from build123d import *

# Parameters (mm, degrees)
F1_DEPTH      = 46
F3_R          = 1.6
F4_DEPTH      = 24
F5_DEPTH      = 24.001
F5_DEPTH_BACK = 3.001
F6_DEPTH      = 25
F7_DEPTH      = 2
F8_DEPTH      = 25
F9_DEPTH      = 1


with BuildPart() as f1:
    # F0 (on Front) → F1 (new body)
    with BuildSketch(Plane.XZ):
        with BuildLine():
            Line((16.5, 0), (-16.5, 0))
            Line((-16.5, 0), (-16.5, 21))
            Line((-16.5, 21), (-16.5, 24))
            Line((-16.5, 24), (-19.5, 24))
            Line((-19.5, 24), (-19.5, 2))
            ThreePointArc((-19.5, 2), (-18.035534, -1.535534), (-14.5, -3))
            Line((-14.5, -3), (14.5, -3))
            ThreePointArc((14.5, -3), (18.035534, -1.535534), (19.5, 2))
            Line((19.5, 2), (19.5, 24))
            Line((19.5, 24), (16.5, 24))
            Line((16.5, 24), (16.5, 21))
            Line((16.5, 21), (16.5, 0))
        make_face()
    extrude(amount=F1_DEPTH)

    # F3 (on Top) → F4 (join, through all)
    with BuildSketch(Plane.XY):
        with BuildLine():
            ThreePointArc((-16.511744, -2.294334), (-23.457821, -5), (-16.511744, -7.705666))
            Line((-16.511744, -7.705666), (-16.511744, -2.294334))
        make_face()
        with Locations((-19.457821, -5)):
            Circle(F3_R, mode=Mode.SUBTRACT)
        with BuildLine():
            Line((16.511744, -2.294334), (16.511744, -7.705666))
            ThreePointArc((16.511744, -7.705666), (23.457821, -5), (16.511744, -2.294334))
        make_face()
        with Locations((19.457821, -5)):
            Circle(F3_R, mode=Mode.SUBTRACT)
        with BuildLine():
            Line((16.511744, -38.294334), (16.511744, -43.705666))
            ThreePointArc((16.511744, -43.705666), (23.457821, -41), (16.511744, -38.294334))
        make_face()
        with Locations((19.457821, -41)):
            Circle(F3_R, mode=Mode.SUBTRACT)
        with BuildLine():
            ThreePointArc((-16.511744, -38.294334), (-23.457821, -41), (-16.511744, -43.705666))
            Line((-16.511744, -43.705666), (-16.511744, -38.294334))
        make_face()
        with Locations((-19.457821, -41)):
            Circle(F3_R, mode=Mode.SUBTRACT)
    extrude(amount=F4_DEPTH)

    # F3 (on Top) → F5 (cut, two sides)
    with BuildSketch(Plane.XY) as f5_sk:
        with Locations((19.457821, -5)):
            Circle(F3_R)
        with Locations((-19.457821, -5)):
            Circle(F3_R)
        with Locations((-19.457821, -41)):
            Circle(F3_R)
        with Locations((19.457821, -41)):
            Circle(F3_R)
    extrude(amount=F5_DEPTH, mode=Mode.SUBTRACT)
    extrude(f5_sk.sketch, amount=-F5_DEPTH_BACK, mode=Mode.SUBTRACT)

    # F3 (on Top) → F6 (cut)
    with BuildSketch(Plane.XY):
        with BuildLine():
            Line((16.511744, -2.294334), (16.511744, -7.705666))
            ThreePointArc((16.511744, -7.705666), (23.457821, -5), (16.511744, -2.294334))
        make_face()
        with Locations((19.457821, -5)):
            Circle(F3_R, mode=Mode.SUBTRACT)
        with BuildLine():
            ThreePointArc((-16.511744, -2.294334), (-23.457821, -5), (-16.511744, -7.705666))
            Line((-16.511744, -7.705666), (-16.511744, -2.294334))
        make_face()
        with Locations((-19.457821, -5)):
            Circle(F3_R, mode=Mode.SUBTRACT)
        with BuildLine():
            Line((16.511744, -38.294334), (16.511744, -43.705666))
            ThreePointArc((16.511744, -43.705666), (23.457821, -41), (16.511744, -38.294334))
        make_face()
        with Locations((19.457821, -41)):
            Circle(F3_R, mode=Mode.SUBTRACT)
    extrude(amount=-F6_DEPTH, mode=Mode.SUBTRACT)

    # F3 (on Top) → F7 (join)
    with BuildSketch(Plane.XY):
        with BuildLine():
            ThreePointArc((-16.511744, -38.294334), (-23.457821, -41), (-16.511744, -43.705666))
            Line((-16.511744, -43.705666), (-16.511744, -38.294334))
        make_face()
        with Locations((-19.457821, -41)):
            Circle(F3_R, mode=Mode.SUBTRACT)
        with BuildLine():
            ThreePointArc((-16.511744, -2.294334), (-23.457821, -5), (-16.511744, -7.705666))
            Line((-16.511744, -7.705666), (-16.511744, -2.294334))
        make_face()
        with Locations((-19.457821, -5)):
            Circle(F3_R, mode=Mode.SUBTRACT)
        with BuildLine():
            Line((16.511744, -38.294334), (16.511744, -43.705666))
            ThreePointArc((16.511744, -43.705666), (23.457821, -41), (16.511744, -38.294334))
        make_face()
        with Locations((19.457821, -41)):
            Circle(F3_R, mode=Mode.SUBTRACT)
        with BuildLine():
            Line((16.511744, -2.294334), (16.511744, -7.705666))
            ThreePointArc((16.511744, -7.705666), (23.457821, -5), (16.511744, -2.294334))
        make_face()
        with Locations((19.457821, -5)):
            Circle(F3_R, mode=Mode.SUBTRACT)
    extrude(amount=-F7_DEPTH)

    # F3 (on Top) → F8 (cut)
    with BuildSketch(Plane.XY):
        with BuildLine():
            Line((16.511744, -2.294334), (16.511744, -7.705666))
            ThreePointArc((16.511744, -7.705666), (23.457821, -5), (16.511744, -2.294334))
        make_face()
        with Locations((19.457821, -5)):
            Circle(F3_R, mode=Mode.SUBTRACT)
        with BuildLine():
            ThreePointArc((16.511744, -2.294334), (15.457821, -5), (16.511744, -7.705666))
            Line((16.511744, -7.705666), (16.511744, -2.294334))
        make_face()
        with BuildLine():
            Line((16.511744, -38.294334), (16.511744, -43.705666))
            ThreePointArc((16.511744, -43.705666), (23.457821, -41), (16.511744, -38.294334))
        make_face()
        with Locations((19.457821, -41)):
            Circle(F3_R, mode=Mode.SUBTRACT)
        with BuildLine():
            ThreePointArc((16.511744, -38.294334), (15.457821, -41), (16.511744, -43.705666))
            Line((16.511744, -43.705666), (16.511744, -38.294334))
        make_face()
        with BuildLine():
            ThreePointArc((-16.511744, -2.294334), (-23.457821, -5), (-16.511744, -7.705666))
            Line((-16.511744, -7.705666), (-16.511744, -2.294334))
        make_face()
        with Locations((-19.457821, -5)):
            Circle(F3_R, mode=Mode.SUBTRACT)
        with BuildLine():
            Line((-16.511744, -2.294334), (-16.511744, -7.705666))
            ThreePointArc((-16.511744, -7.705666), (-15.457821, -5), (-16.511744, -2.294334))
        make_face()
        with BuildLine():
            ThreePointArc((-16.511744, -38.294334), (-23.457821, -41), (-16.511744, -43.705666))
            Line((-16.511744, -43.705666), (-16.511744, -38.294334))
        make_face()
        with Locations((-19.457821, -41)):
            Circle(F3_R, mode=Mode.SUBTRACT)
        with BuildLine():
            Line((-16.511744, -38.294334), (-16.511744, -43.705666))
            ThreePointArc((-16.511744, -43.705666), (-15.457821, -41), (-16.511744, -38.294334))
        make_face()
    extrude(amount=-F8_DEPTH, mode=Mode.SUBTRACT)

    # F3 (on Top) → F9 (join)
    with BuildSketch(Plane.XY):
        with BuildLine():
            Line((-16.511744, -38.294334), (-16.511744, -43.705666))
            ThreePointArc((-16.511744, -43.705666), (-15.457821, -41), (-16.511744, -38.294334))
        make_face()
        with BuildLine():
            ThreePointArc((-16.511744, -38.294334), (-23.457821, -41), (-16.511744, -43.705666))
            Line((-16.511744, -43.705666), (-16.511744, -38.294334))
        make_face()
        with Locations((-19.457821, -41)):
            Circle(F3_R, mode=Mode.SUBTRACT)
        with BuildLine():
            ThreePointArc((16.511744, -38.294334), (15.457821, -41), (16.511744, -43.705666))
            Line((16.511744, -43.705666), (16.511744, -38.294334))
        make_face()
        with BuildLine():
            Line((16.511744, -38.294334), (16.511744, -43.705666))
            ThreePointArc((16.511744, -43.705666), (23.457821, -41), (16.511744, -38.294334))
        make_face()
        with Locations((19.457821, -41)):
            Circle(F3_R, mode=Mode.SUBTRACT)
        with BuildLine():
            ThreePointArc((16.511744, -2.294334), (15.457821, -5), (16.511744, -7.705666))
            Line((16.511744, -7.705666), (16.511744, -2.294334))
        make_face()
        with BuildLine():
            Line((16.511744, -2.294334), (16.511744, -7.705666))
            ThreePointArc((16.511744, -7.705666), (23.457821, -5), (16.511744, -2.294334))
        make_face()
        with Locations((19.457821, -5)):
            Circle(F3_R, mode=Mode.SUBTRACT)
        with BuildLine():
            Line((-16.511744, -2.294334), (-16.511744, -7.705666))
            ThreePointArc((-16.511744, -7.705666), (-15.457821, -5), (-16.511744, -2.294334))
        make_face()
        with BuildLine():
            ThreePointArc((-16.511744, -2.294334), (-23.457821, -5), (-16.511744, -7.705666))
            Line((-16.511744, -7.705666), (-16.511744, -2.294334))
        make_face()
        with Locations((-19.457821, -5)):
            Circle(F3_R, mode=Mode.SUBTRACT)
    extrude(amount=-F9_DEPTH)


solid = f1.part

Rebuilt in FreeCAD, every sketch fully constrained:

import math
import FreeCAD as App
import Part
import Sketcher
from FreeCAD import Vector
Q = App.Units.Quantity

doc = App.newDocument("Part")
body = doc.addObject("PartDesign::Body", "Body")

# Sketch on XZ plane
sketch1 = body.newObject("Sketcher::SketchObject", "Sketch")
sketch1.AttachmentSupport = (doc.getObject("XZ_Plane"), [""])
sketch1.MapMode = "FlatFace"
sketch1.addGeometry([
    Part.LineSegment(Vector(16.5, 0, 0), Vector(-16.5, 0, 0)),  # 0
    Part.LineSegment(Vector(-16.5, 0, 0), Vector(-16.5, 24, 0)),  # 1
    Part.LineSegment(Vector(-16.5, 24, 0), Vector(-19.5, 24, 0)),  # 2
    Part.LineSegment(Vector(-19.5, 24, 0), Vector(-19.5, 2, 0)),  # 3
    Part.ArcOfCircle(Part.Circle(Vector(-14.5, 2, 0), Vector(0, 0, 1), 5), math.radians(180), math.radians(270)),  # 4
    Part.LineSegment(Vector(-14.5, -3, 0), Vector(14.5, -3, 0)),  # 5
    Part.ArcOfCircle(Part.Circle(Vector(14.5, 2, 0), Vector(0, 0, 1), 5), math.radians(-90), math.radians(0)),  # 6
    Part.LineSegment(Vector(19.5, 2, 0), Vector(19.5, 24, 0)),  # 7
    Part.LineSegment(Vector(19.5, 24, 0), Vector(16.5, 24, 0)),  # 8
    Part.LineSegment(Vector(16.5, 24, 0), Vector(16.5, 0, 0)),  # 9
], False)
sketch1.addConstraint([
    Sketcher.Constraint("Coincident", 0, 2, 1, 1),
    Sketcher.Constraint("Coincident", 1, 2, 2, 1),
    Sketcher.Constraint("Coincident", 2, 2, 3, 1),
    Sketcher.Constraint("Tangent", 3, 2, 4, 1),
    Sketcher.Constraint("Tangent", 4, 2, 5, 1),
    Sketcher.Constraint("Tangent", 5, 2, 6, 1),
    Sketcher.Constraint("Tangent", 6, 2, 7, 1),
    Sketcher.Constraint("Coincident", 7, 2, 8, 1),
    Sketcher.Constraint("Coincident", 8, 2, 9, 1),
    Sketcher.Constraint("Coincident", 9, 2, 0, 1),
    Sketcher.Constraint("Horizontal", 0),
    Sketcher.Constraint("Vertical", 1),
    Sketcher.Constraint("Horizontal", 2),
    Sketcher.Constraint("Vertical", 3),
    Sketcher.Constraint("Horizontal", 5),
    Sketcher.Constraint("Vertical", 7),
    Sketcher.Constraint("Horizontal", 8),
    Sketcher.Constraint("Vertical", 9),
    Sketcher.Constraint("Equal", 4, 6),
    Sketcher.Constraint("Symmetric", 0, 2, 9, 2, -1, 1),
    Sketcher.Constraint("Symmetric", 2, 2, 7, 2, -2),
    Sketcher.Constraint("Radius", 4, Q("5 mm")),
    Sketcher.Constraint("DistanceX", 0, 2, 0, 1, Q("33 mm")),
    Sketcher.Constraint("DistanceX", 2, 2, 2, 1, Q("3 mm")),
    Sketcher.Constraint("DistanceY", 1, 1, 1, 2, Q("24 mm")),
    Sketcher.Constraint("DistanceY", 3, 2, 3, 1, Q("22 mm")),
])
pad1 = body.newObject("PartDesign::Pad", "Pad")
pad1.Profile = sketch1
pad1.Length = 46

# Sketch on XY plane
sketch2 = body.newObject("Sketcher::SketchObject", "Sketch001")
sketch2.AttachmentSupport = (doc.getObject("XY_Plane"), [""])
sketch2.MapMode = "FlatFace"
sketch2.addGeometry([
    Part.ArcOfCircle(Part.Circle(Vector(-19.5, -5, 0), Vector(0, 0, 1), 4), math.radians(43), math.radians(317)),  # 0
    Part.LineSegment(Vector(-16.5, -7.7, 0), Vector(-16.5, -2.3, 0)),  # 1
    Part.Circle(Vector(-19.5, -5, 0), Vector(0, 0, 1), 1.6),  # 2
    Part.LineSegment(Vector(16.5, -2.3, 0), Vector(16.5, -7.7, 0)),  # 3
    Part.ArcOfCircle(Part.Circle(Vector(19.5, -5, 0), Vector(0, 0, 1), 4), math.radians(-137), math.radians(137)),  # 4
    Part.Circle(Vector(19.5, -5, 0), Vector(0, 0, 1), 1.6),  # 5
    Part.LineSegment(Vector(16.5, -38.3, 0), Vector(16.5, -43.7, 0)),  # 6
    Part.ArcOfCircle(Part.Circle(Vector(19.5, -41, 0), Vector(0, 0, 1), 4), math.radians(-137), math.radians(137)),  # 7
    Part.Circle(Vector(19.5, -41, 0), Vector(0, 0, 1), 1.6),  # 8
    Part.ArcOfCircle(Part.Circle(Vector(-19.5, -41, 0), Vector(0, 0, 1), 4), math.radians(43), math.radians(317)),  # 9
    Part.LineSegment(Vector(-16.5, -43.7, 0), Vector(-16.5, -38.3, 0)),  # 10
    Part.Circle(Vector(-19.5, -41, 0), Vector(0, 0, 1), 1.6),  # 11
], False)
sketch2.addConstraint([
    Sketcher.Constraint("Coincident", 0, 1, 1, 2),
    Sketcher.Constraint("Coincident", 1, 1, 0, 2),
    Sketcher.Constraint("Coincident", 3, 1, 4, 2),
    Sketcher.Constraint("Coincident", 4, 1, 3, 2),
    Sketcher.Constraint("Coincident", 6, 1, 7, 2),
    Sketcher.Constraint("Coincident", 7, 1, 6, 2),
    Sketcher.Constraint("Coincident", 9, 1, 10, 2),
    Sketcher.Constraint("Coincident", 10, 1, 9, 2),
    Sketcher.Constraint("Vertical", 1),
    Sketcher.Constraint("Vertical", 3),
    Sketcher.Constraint("Vertical", 6),
    Sketcher.Constraint("Vertical", 10),
    Sketcher.Constraint("Coincident", 2, 3, 0, 3),
    Sketcher.Constraint("Coincident", 5, 3, 4, 3),
    Sketcher.Constraint("Coincident", 8, 3, 7, 3),
    Sketcher.Constraint("Coincident", 11, 3, 9, 3),
    Sketcher.Constraint("Equal", 0, 4),
    Sketcher.Constraint("Equal", 2, 5),
    Sketcher.Constraint("Equal", 4, 7),
    Sketcher.Constraint("Equal", 5, 8),
    Sketcher.Constraint("Equal", 7, 9),
    Sketcher.Constraint("Equal", 8, 11),
    Sketcher.Constraint("Symmetric", 0, 3, 4, 3, -2),
    Sketcher.Constraint("Symmetric", 7, 3, 9, 3, -2),
    Sketcher.Constraint("Horizontal", 0, 1, 3, 1),
    Sketcher.Constraint("Horizontal", 6, 1, 9, 1),
    Sketcher.Constraint("Vertical", 5, 3, 7, 3),
    Sketcher.Constraint("Vertical", 4, 1, 6, 1),
    Sketcher.Constraint("Radius", 0, Q("4 mm")),
    Sketcher.Constraint("Diameter", 2, Q("3.2 mm")),
    Sketcher.Constraint("DistanceY", 0, 3, -1, 1, Q("5 mm")),
    Sketcher.Constraint("DistanceY", 7, 3, -1, 1, Q("41 mm")),
    Sketcher.Constraint("DistanceY", 1, 1, 1, 2, Q("5.411332 mm")),
    Sketcher.Constraint("DistanceX", 0, 3, -1, 1, Q("19.457821 mm")),
])
pad2 = body.newObject("PartDesign::Pad", "Pad001")
pad2.Profile = sketch2
pad2.Length = 24

# Sketch on XY plane
sketch3 = body.newObject("Sketcher::SketchObject", "Sketch002")
sketch3.AttachmentSupport = (doc.getObject("XY_Plane"), [""])
sketch3.MapMode = "FlatFace"
sketch3.addGeometry([
    Part.Circle(Vector(19.5, -5, 0), Vector(0, 0, 1), 1.6),
    Part.Circle(Vector(-19.5, -5, 0), Vector(0, 0, 1), 1.6),
    Part.Circle(Vector(-19.5, -41, 0), Vector(0, 0, 1), 1.6),
    Part.Circle(Vector(19.5, -41, 0), Vector(0, 0, 1), 1.6),
], False)
sketch3.addConstraint([
    Sketcher.Constraint("Equal", 0, 1),
    Sketcher.Constraint("Equal", 1, 2),
    Sketcher.Constraint("Equal", 2, 3),
    Sketcher.Constraint("Symmetric", 0, 3, 1, 3, -2),
    Sketcher.Constraint("Symmetric", 2, 3, 3, 3, -2),
    Sketcher.Constraint("Vertical", 1, 3, 2, 3),
    Sketcher.Constraint("Diameter", 0, Q("3.2 mm")),
    Sketcher.Constraint("DistanceY", 0, 3, -1, 1, Q("5 mm")),
    Sketcher.Constraint("DistanceY", 2, 3, -1, 1, Q("41 mm")),
    Sketcher.Constraint("DistanceX", -1, 1, 0, 3, Q("19.457821 mm")),
])
pocket1 = body.newObject("PartDesign::Pocket", "Pocket")
pocket1.Profile = sketch3
pocket1.Type = "ThroughAll"
pocket1.Midplane = True

# Sketch on XY plane
sketch4 = body.newObject("Sketcher::SketchObject", "Sketch003")
sketch4.AttachmentSupport = (doc.getObject("XY_Plane"), [""])
sketch4.MapMode = "FlatFace"
sketch4.addGeometry([
    Part.LineSegment(Vector(16.5, -2.3, 0), Vector(16.5, -7.7, 0)),  # 0
    Part.ArcOfCircle(Part.Circle(Vector(19.5, -5, 0), Vector(0, 0, 1), 4), math.radians(-137), math.radians(137)),  # 1
    Part.Circle(Vector(19.5, -5, 0), Vector(0, 0, 1), 1.6),  # 2
    Part.ArcOfCircle(Part.Circle(Vector(-19.5, -5, 0), Vector(0, 0, 1), 4), math.radians(43), math.radians(317)),  # 3
    Part.LineSegment(Vector(-16.5, -7.7, 0), Vector(-16.5, -2.3, 0)),  # 4
    Part.Circle(Vector(-19.5, -5, 0), Vector(0, 0, 1), 1.6),  # 5
    Part.LineSegment(Vector(16.5, -38.3, 0), Vector(16.5, -43.7, 0)),  # 6
    Part.ArcOfCircle(Part.Circle(Vector(19.5, -41, 0), Vector(0, 0, 1), 4), math.radians(-137), math.radians(137)),  # 7
    Part.Circle(Vector(19.5, -41, 0), Vector(0, 0, 1), 1.6),  # 8
], False)
sketch4.addConstraint([
    Sketcher.Constraint("Coincident", 0, 1, 1, 2),
    Sketcher.Constraint("Coincident", 1, 1, 0, 2),
    Sketcher.Constraint("Coincident", 3, 1, 4, 2),
    Sketcher.Constraint("Coincident", 4, 1, 3, 2),
    Sketcher.Constraint("Coincident", 6, 1, 7, 2),
    Sketcher.Constraint("Coincident", 7, 1, 6, 2),
    Sketcher.Constraint("Vertical", 0),
    Sketcher.Constraint("Vertical", 4),
    Sketcher.Constraint("Vertical", 6),
    Sketcher.Constraint("Coincident", 2, 3, 1, 3),
    Sketcher.Constraint("Coincident", 5, 3, 3, 3),
    Sketcher.Constraint("Coincident", 8, 3, 7, 3),
    Sketcher.Constraint("Equal", 1, 3),
    Sketcher.Constraint("Equal", 2, 5),
    Sketcher.Constraint("Equal", 3, 7),
    Sketcher.Constraint("Equal", 5, 8),
    Sketcher.Constraint("Symmetric", 1, 3, 3, 3, -2),
    Sketcher.Constraint("Horizontal", 0, 1, 3, 1),
    Sketcher.Constraint("Vertical", 2, 3, 7, 3),
    Sketcher.Constraint("Vertical", 1, 1, 6, 1),
    Sketcher.Constraint("Radius", 1, Q("4 mm")),
    Sketcher.Constraint("Diameter", 2, Q("3.2 mm")),
    Sketcher.Constraint("DistanceY", 1, 3, -1, 1, Q("5 mm")),
    Sketcher.Constraint("DistanceY", 7, 3, -1, 1, Q("41 mm")),
    Sketcher.Constraint("DistanceY", 0, 2, 0, 1, Q("5.411332 mm")),
    Sketcher.Constraint("DistanceX", -1, 1, 1, 3, Q("19.457821 mm")),
])
pocket2 = body.newObject("PartDesign::Pocket", "Pocket001")
pocket2.Profile = sketch4
pocket2.Length = 25

# Sketch on XY plane
sketch5 = body.newObject("Sketcher::SketchObject", "Sketch004")
sketch5.AttachmentSupport = (doc.getObject("XY_Plane"), [""])
sketch5.MapMode = "FlatFace"
sketch5.addGeometry([
    Part.ArcOfCircle(Part.Circle(Vector(-19.5, -41, 0), Vector(0, 0, 1), 4), math.radians(43), math.radians(317)),  # 0
    Part.LineSegment(Vector(-16.5, -43.7, 0), Vector(-16.5, -38.3, 0)),  # 1
    Part.Circle(Vector(-19.5, -41, 0), Vector(0, 0, 1), 1.6),  # 2
    Part.ArcOfCircle(Part.Circle(Vector(-19.5, -5, 0), Vector(0, 0, 1), 4), math.radians(43), math.radians(317)),  # 3
    Part.LineSegment(Vector(-16.5, -7.7, 0), Vector(-16.5, -2.3, 0)),  # 4
    Part.Circle(Vector(-19.5, -5, 0), Vector(0, 0, 1), 1.6),  # 5
    Part.LineSegment(Vector(16.5, -38.3, 0), Vector(16.5, -43.7, 0)),  # 6
    Part.ArcOfCircle(Part.Circle(Vector(19.5, -41, 0), Vector(0, 0, 1), 4), math.radians(-137), math.radians(137)),  # 7
    Part.Circle(Vector(19.5, -41, 0), Vector(0, 0, 1), 1.6),  # 8
    Part.LineSegment(Vector(16.5, -2.3, 0), Vector(16.5, -7.7, 0)),  # 9
    Part.ArcOfCircle(Part.Circle(Vector(19.5, -5, 0), Vector(0, 0, 1), 4), math.radians(-137), math.radians(137)),  # 10
    Part.Circle(Vector(19.5, -5, 0), Vector(0, 0, 1), 1.6),  # 11
], False)
sketch5.addConstraint([
    Sketcher.Constraint("Coincident", 0, 1, 1, 2),
    Sketcher.Constraint("Coincident", 1, 1, 0, 2),
    Sketcher.Constraint("Coincident", 3, 1, 4, 2),
    Sketcher.Constraint("Coincident", 4, 1, 3, 2),
    Sketcher.Constraint("Coincident", 6, 1, 7, 2),
    Sketcher.Constraint("Coincident", 7, 1, 6, 2),
    Sketcher.Constraint("Coincident", 9, 1, 10, 2),
    Sketcher.Constraint("Coincident", 10, 1, 9, 2),
    Sketcher.Constraint("Vertical", 1),
    Sketcher.Constraint("Vertical", 4),
    Sketcher.Constraint("Vertical", 6),
    Sketcher.Constraint("Vertical", 9),
    Sketcher.Constraint("Coincident", 2, 3, 0, 3),
    Sketcher.Constraint("Coincident", 5, 3, 3, 3),
    Sketcher.Constraint("Coincident", 8, 3, 7, 3),
    Sketcher.Constraint("Coincident", 11, 3, 10, 3),
    Sketcher.Constraint("Equal", 0, 3),
    Sketcher.Constraint("Equal", 2, 5),
    Sketcher.Constraint("Equal", 3, 7),
    Sketcher.Constraint("Equal", 5, 8),
    Sketcher.Constraint("Equal", 7, 10),
    Sketcher.Constraint("Equal", 8, 11),
    Sketcher.Constraint("Symmetric", 0, 3, 7, 3, -2),
    Sketcher.Constraint("Symmetric", 3, 3, 10, 3, -2),
    Sketcher.Constraint("Horizontal", 0, 1, 6, 1),
    Sketcher.Constraint("Horizontal", 3, 1, 9, 1),
    Sketcher.Constraint("Vertical", 2, 3, 3, 3),
    Sketcher.Constraint("Vertical", 1, 1, 3, 1),
    Sketcher.Constraint("Radius", 0, Q("4 mm")),
    Sketcher.Constraint("Diameter", 2, Q("3.2 mm")),
    Sketcher.Constraint("DistanceY", 0, 3, -1, 1, Q("41 mm")),
    Sketcher.Constraint("DistanceY", 3, 3, -1, 1, Q("5 mm")),
    Sketcher.Constraint("DistanceY", 4, 1, 4, 2, Q("5.411332 mm")),
    Sketcher.Constraint("DistanceX", 0, 3, -1, 1, Q("19.457821 mm")),
])
pad3 = body.newObject("PartDesign::Pad", "Pad002")
pad3.Profile = sketch5
pad3.Length = 2
pad3.Reversed = True

# Sketch on XY plane
sketch6 = body.newObject("Sketcher::SketchObject", "Sketch005")
sketch6.AttachmentSupport = (doc.getObject("XY_Plane"), [""])
sketch6.MapMode = "FlatFace"
sketch6.addGeometry([
    Part.ArcOfCircle(Part.Circle(Vector(19.5, -5, 0), Vector(0, 0, 1), 4), math.radians(-137), math.radians(137)),  # 0
    Part.ArcOfCircle(Part.Circle(Vector(19.5, -5, 0), Vector(0, 0, 1), 4), math.radians(137), math.radians(223)),  # 1
    Part.Circle(Vector(19.5, -5, 0), Vector(0, 0, 1), 1.6),  # 2
    Part.ArcOfCircle(Part.Circle(Vector(19.5, -41, 0), Vector(0, 0, 1), 4), math.radians(-137), math.radians(137)),  # 3
    Part.ArcOfCircle(Part.Circle(Vector(19.5, -41, 0), Vector(0, 0, 1), 4), math.radians(137), math.radians(223)),  # 4
    Part.Circle(Vector(19.5, -41, 0), Vector(0, 0, 1), 1.6),  # 5
    Part.ArcOfCircle(Part.Circle(Vector(-19.5, -5, 0), Vector(0, 0, 1), 4), math.radians(43), math.radians(317)),  # 6
    Part.ArcOfCircle(Part.Circle(Vector(-19.5, -5, 0), Vector(0, 0, 1), 4), math.radians(-43), math.radians(43)),  # 7
    Part.Circle(Vector(-19.5, -5, 0), Vector(0, 0, 1), 1.6),  # 8
    Part.ArcOfCircle(Part.Circle(Vector(-19.5, -41, 0), Vector(0, 0, 1), 4), math.radians(43), math.radians(317)),  # 9
    Part.ArcOfCircle(Part.Circle(Vector(-19.5, -41, 0), Vector(0, 0, 1), 4), math.radians(-43), math.radians(43)),  # 10
    Part.Circle(Vector(-19.5, -41, 0), Vector(0, 0, 1), 1.6),  # 11
], False)
sketch6.addConstraint([
    Sketcher.Constraint("Tangent", 0, 1, 1, 2),
    Sketcher.Constraint("Coincident", 1, 1, 0, 2),
    Sketcher.Constraint("Tangent", 3, 1, 4, 2),
    Sketcher.Constraint("Coincident", 4, 1, 3, 2),
    Sketcher.Constraint("Tangent", 6, 1, 7, 2),
    Sketcher.Constraint("Coincident", 7, 1, 6, 2),
    Sketcher.Constraint("Tangent", 9, 1, 10, 2),
    Sketcher.Constraint("Coincident", 10, 1, 9, 2),
    Sketcher.Constraint("Coincident", 2, 3, 0, 3),
    Sketcher.Constraint("Coincident", 5, 3, 3, 3),
    Sketcher.Constraint("Coincident", 8, 3, 6, 3),
    Sketcher.Constraint("Coincident", 11, 3, 9, 3),
    Sketcher.Constraint("Equal", 1, 3),
    Sketcher.Constraint("Equal", 2, 5),
    Sketcher.Constraint("Equal", 4, 6),
    Sketcher.Constraint("Equal", 5, 8),
    Sketcher.Constraint("Equal", 7, 9),
    Sketcher.Constraint("Equal", 8, 11),
    Sketcher.Constraint("Symmetric", 0, 3, 6, 3, -2),
    Sketcher.Constraint("Symmetric", 3, 3, 9, 3, -2),
    Sketcher.Constraint("Horizontal", 1, 1, 6, 1),
    Sketcher.Constraint("Horizontal", 0, 1, 7, 1),
    Sketcher.Constraint("Horizontal", 4, 1, 9, 1),
    Sketcher.Constraint("Horizontal", 3, 1, 10, 1),
    Sketcher.Constraint("Vertical", 2, 3, 3, 3),
    Sketcher.Constraint("Vertical", 0, 1, 1, 1),
    Sketcher.Constraint("Vertical", 1, 1, 3, 1),
    Sketcher.Constraint("Vertical", 3, 1, 4, 1),
    Sketcher.Constraint("Radius", 0, Q("4 mm")),
    Sketcher.Constraint("Diameter", 2, Q("3.2 mm")),
    Sketcher.Constraint("DistanceY", 0, 3, -1, 1, Q("5 mm")),
    Sketcher.Constraint("DistanceY", 3, 3, -1, 1, Q("41 mm")),
    Sketcher.Constraint("DistanceX", -1, 1, 0, 3, Q("19.457821 mm")),
    Sketcher.Constraint("DistanceX", -1, 1, 0, 1, Q("16.511744 mm")),
])
pocket3 = body.newObject("PartDesign::Pocket", "Pocket002")
pocket3.Profile = sketch6
pocket3.Length = 25

# Sketch on XY plane
sketch7 = body.newObject("Sketcher::SketchObject", "Sketch006")
sketch7.AttachmentSupport = (doc.getObject("XY_Plane"), [""])
sketch7.MapMode = "FlatFace"
sketch7.addGeometry([
    Part.ArcOfCircle(Part.Circle(Vector(-19.5, -41, 0), Vector(0, 0, 1), 4), math.radians(-43), math.radians(43)),  # 0
    Part.ArcOfCircle(Part.Circle(Vector(-19.5, -41, 0), Vector(0, 0, 1), 4), math.radians(43), math.radians(317)),  # 1
    Part.Circle(Vector(-19.5, -41, 0), Vector(0, 0, 1), 1.6),  # 2
    Part.ArcOfCircle(Part.Circle(Vector(19.5, -41, 0), Vector(0, 0, 1), 4), math.radians(137), math.radians(223)),  # 3
    Part.ArcOfCircle(Part.Circle(Vector(19.5, -41, 0), Vector(0, 0, 1), 4), math.radians(-137), math.radians(137)),  # 4
    Part.Circle(Vector(19.5, -41, 0), Vector(0, 0, 1), 1.6),  # 5
    Part.ArcOfCircle(Part.Circle(Vector(19.5, -5, 0), Vector(0, 0, 1), 4), math.radians(137), math.radians(223)),  # 6
    Part.ArcOfCircle(Part.Circle(Vector(19.5, -5, 0), Vector(0, 0, 1), 4), math.radians(-137), math.radians(137)),  # 7
    Part.Circle(Vector(19.5, -5, 0), Vector(0, 0, 1), 1.6),  # 8
    Part.ArcOfCircle(Part.Circle(Vector(-19.5, -5, 0), Vector(0, 0, 1), 4), math.radians(-43), math.radians(43)),  # 9
    Part.ArcOfCircle(Part.Circle(Vector(-19.5, -5, 0), Vector(0, 0, 1), 4), math.radians(43), math.radians(317)),  # 10
    Part.Circle(Vector(-19.5, -5, 0), Vector(0, 0, 1), 1.6),  # 11
], False)
sketch7.addConstraint([
    Sketcher.Constraint("Tangent", 0, 1, 1, 2),
    Sketcher.Constraint("Coincident", 1, 1, 0, 2),
    Sketcher.Constraint("Tangent", 3, 1, 4, 2),
    Sketcher.Constraint("Coincident", 4, 1, 3, 2),
    Sketcher.Constraint("Tangent", 6, 1, 7, 2),
    Sketcher.Constraint("Coincident", 7, 1, 6, 2),
    Sketcher.Constraint("Tangent", 9, 1, 10, 2),
    Sketcher.Constraint("Coincident", 10, 1, 9, 2),
    Sketcher.Constraint("Coincident", 2, 3, 0, 3),
    Sketcher.Constraint("Coincident", 5, 3, 3, 3),
    Sketcher.Constraint("Coincident", 8, 3, 6, 3),
    Sketcher.Constraint("Coincident", 11, 3, 9, 3),
    Sketcher.Constraint("Equal", 1, 3),
    Sketcher.Constraint("Equal", 2, 5),
    Sketcher.Constraint("Equal", 4, 6),
    Sketcher.Constraint("Equal", 5, 8),
    Sketcher.Constraint("Equal", 7, 9),
    Sketcher.Constraint("Equal", 8, 11),
    Sketcher.Constraint("Symmetric", 0, 3, 3, 3, -2),
    Sketcher.Constraint("Symmetric", 6, 3, 9, 3, -2),
    Sketcher.Constraint("Horizontal", 1, 1, 3, 1),
    Sketcher.Constraint("Horizontal", 0, 1, 4, 1),
    Sketcher.Constraint("Horizontal", 7, 1, 9, 1),
    Sketcher.Constraint("Horizontal", 6, 1, 10, 1),
    Sketcher.Constraint("Vertical", 5, 3, 6, 3),
    Sketcher.Constraint("Vertical", 0, 1, 1, 1),
    Sketcher.Constraint("Vertical", 4, 1, 6, 1),
    Sketcher.Constraint("Vertical", 6, 1, 7, 1),
    Sketcher.Constraint("Radius", 0, Q("3.999999 mm")),
    Sketcher.Constraint("Diameter", 2, Q("3.2 mm")),
    Sketcher.Constraint("DistanceY", 0, 3, -1, 1, Q("41 mm")),
    Sketcher.Constraint("DistanceY", 6, 3, -1, 1, Q("5 mm")),
    Sketcher.Constraint("DistanceX", 0, 3, -1, 1, Q("19.45782 mm")),
    Sketcher.Constraint("DistanceX", 0, 1, -1, 1, Q("16.511744 mm")),
])
pad4 = body.newObject("PartDesign::Pad", "Pad003")
pad4.Profile = sketch7
pad4.Length = 1
pad4.Reversed = True

doc.recompute()
